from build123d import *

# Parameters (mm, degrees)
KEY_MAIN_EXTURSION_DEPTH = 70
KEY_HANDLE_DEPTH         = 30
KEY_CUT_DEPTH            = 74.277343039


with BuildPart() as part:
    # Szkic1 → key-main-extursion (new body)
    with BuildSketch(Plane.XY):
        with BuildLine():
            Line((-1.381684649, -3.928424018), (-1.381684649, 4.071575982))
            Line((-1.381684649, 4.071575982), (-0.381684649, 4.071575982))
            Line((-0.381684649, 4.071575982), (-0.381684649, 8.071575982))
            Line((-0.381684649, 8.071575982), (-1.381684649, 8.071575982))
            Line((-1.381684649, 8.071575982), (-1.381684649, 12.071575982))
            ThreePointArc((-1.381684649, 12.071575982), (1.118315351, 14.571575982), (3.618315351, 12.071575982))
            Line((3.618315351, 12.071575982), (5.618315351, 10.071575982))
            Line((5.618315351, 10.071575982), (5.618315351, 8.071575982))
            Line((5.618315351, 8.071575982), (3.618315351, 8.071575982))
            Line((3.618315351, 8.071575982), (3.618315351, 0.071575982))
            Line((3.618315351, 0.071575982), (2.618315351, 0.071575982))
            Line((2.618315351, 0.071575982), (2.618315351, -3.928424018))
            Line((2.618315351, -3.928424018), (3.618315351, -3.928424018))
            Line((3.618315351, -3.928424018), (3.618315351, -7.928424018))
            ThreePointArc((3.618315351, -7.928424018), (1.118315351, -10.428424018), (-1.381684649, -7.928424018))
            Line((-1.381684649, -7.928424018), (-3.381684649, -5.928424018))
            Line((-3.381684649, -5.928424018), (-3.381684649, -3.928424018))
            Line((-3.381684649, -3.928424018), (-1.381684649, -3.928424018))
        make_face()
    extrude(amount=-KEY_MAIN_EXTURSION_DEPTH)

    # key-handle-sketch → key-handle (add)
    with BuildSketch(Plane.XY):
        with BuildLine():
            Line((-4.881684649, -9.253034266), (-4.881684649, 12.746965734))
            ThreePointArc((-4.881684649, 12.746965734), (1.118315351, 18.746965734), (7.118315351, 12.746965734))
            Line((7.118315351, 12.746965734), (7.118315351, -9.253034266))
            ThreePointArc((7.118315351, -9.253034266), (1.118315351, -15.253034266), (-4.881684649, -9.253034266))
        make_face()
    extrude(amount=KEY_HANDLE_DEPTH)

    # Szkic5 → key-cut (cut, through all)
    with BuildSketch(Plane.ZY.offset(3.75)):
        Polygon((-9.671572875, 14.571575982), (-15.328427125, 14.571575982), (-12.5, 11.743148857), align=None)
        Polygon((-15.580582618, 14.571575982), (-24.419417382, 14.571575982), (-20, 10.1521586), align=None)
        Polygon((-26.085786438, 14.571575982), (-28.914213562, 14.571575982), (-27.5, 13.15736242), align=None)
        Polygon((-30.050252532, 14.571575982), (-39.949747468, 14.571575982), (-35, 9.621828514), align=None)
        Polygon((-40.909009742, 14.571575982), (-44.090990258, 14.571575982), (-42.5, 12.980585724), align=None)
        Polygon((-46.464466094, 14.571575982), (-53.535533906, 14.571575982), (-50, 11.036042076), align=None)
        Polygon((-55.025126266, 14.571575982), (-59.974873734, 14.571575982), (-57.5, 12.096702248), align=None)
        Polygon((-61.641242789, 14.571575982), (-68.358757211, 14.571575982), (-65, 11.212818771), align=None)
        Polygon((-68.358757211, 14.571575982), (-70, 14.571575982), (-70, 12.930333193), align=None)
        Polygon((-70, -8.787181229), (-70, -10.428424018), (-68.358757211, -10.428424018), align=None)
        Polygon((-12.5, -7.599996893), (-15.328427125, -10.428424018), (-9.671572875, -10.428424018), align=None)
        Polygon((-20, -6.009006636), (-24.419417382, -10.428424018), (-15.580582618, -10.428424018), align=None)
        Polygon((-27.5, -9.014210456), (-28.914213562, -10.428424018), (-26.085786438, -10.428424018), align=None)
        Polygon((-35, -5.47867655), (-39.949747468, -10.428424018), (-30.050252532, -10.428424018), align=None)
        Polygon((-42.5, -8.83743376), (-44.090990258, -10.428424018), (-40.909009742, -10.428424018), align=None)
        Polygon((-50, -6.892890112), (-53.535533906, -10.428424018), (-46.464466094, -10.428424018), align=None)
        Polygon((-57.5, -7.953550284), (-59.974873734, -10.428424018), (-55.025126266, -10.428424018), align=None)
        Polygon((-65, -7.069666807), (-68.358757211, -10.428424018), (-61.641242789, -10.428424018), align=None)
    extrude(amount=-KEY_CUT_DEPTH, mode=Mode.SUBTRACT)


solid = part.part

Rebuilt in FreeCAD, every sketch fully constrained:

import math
import FreeCAD as App
import Part
import Sketcher
from FreeCAD import Vector
Q = App.Units.Quantity


def add_polygon(sketch, points):
    """Adds a closed chain of lines whose ends are joined by coincident constraints."""
    first, n = sketch.GeometryCount, len(points)
    for a, b in zip(points, points[1:] + points[:1]):
        sketch.addGeometry(Part.LineSegment(App.Vector(*a, 0), App.Vector(*b, 0)), False)
    for i in range(n):
        sketch.addConstraint(Sketcher.Constraint("Coincident", first + i, 2, first + (i + 1) % n, 1))

doc = App.newDocument("Part")
body = doc.addObject("PartDesign::Body", "Body")

sketch1 = body.newObject("Sketcher::SketchObject", "Sketch")
sketch1.AttachmentSupport = (doc.getObject("XY_Plane"), [""])
sketch1.MapMode = "FlatFace"
sketch1.addGeometry(Part.LineSegment(Vector(-1.4, 4.1, 0), Vector(-1.4, -3.9, 0)), False)
sketch1.addGeometry(Part.LineSegment(Vector(-1.4, -3.9, 0), Vector(-3.4, -3.9, 0)), False)
sketch1.addGeometry(Part.LineSegment(Vector(-3.4, -3.9, 0), Vector(-3.4, -5.9, 0)), False)
sketch1.addGeometry(Part.LineSegment(Vector(-3.4, -5.9, 0), Vector(-1.4, -7.9, 0)), False)
sketch1.addGeometry(Part.ArcOfCircle(Part.Circle(Vector(1.1, -7.9, 0), Vector(0, 0, 1), 2.5), math.radians(180), math.radians(360)), False)
sketch1.addGeometry(Part.LineSegment(Vector(3.6, -7.9, 0), Vector(3.6, -3.9, 0)), False)
sketch1.addGeometry(Part.LineSegment(Vector(3.6, -3.9, 0), Vector(2.6, -3.9, 0)), False)
sketch1.addGeometry(Part.LineSegment(Vector(2.6, -3.9, 0), Vector(2.6, 0.1, 0)), False)
sketch1.addGeometry(Part.LineSegment(Vector(2.6, 0.1, 0), Vector(3.6, 0.1, 0)), False)
sketch1.addGeometry(Part.LineSegment(Vector(3.6, 0.1, 0), Vector(3.6, 8.1, 0)), False)
sketch1.addGeometry(Part.LineSegment(Vector(3.6, 8.1, 0), Vector(5.6, 8.1, 0)), False)
sketch1.addGeometry(Part.LineSegment(Vector(5.6, 8.1, 0), Vector(5.6, 10.1, 0)), False)
sketch1.addGeometry(Part.LineSegment(Vector(5.6, 10.1, 0), Vector(3.6, 12.1, 0)), False)
sketch1.addGeometry(Part.ArcOfCircle(Part.Circle(Vector(1.1, 12.1, 0), Vector(0, 0, 1), 2.5), math.radians(0), math.radians(180)), False)
sketch1.addGeometry(Part.LineSegment(Vector(-1.4, 12.1, 0), Vector(-1.4, 8.1, 0)), False)
sketch1.addGeometry(Part.LineSegment(Vector(-1.4, 8.1, 0), Vector(-0.4, 8.1, 0)), False)
sketch1.addGeometry(Part.LineSegment(Vector(-0.4, 8.1, 0), Vector(-0.4, 4.1, 0)), False)
sketch1.addGeometry(Part.LineSegment(Vector(-0.4, 4.1, 0), Vector(-1.4, 4.1, 0)), False)
sketch1.addConstraint(Sketcher.Constraint("Coincident", 0, 2, 1, 1))
sketch1.addConstraint(Sketcher.Constraint("Coincident", 1, 2, 2, 1))
sketch1.addConstraint(Sketcher.Constraint("Coincident", 2, 2, 3, 1))
sketch1.addConstraint(Sketcher.Constraint("Coincident", 3, 2, 4, 1))
sketch1.addConstraint(Sketcher.Constraint("Tangent", 4, 2, 5, 1))
sketch1.addConstraint(Sketcher.Constraint("Coincident", 5, 2, 6, 1))
sketch1.addConstraint(Sketcher.Constraint("Coincident", 6, 2, 7, 1))
sketch1.addConstraint(Sketcher.Constraint("Coincident", 7, 2, 8, 1))
sketch1.addConstraint(Sketcher.Constraint("Coincident", 8, 2, 9, 1))
sketch1.addConstraint(Sketcher.Constraint("Coincident", 9, 2, 10, 1))
sketch1.addConstraint(Sketcher.Constraint("Coincident", 10, 2, 11, 1))
sketch1.addConstraint(Sketcher.Constraint("Coincident", 11, 2, 12, 1))
sketch1.addConstraint(Sketcher.Constraint("Coincident", 12, 2, 13, 1))
sketch1.addConstraint(Sketcher.Constraint("Tangent", 13, 2, 14, 1))
sketch1.addConstraint(Sketcher.Constraint("Coincident", 14, 2, 15, 1))
sketch1.addConstraint(Sketcher.Constraint("Coincident", 15, 2, 16, 1))
sketch1.addConstraint(Sketcher.Constraint("Coincident", 16, 2, 17, 1))
sketch1.addConstraint(Sketcher.Constraint("Coincident", 17, 2, 0, 1))
sketch1.addConstraint(Sketcher.Constraint("Vertical", 0))
sketch1.addConstraint(Sketcher.Constraint("Horizontal", 1))
sketch1.addConstraint(Sketcher.Constraint("Vertical", 2))
sketch1.addConstraint(Sketcher.Constraint("Vertical", 5))
sketch1.addConstraint(Sketcher.Constraint("Horizontal", 6))
sketch1.addConstraint(Sketcher.Constraint("Vertical", 7))
sketch1.addConstraint(Sketcher.Constraint("Horizontal", 8))
sketch1.addConstraint(Sketcher.Constraint("Vertical", 9))
sketch1.addConstraint(Sketcher.Constraint("Horizontal", 10))
sketch1.addConstraint(Sketcher.Constraint("Vertical", 11))
sketch1.addConstraint(Sketcher.Constraint("Vertical", 14))
sketch1.addConstraint(Sketcher.Constraint("Horizontal", 15))
sketch1.addConstraint(Sketcher.Constraint("Vertical", 16))
sketch1.addConstraint(Sketcher.Constraint("Horizontal", 17))
sketch1.addConstraint(Sketcher.Constraint("Equal", 4, 13))
sketch1.addConstraint(Sketcher.Constraint("Parallel", 3, 12))
sketch1.addConstraint(Sketcher.Constraint("Horizontal", 4, 3, 3, 2))
sketch1.addConstraint(Sketcher.Constraint("Horizontal", 1, 2, 5, 2))
sketch1.addConstraint(Sketcher.Constraint("Horizontal", 13, 3, 12, 2))
sketch1.addConstraint(Sketcher.Constraint("Horizontal", 10, 2, 14, 2))
sketch1.addConstraint(Sketcher.Constraint("Vertical", 4, 3, 13, 3))
sketch1.addConstraint(Sketcher.Constraint("Vertical", 0, 2, 3, 2))
sketch1.addConstraint(Sketcher.Constraint("Vertical", 5, 2, 8, 2))
sketch1.addConstraint(Sketcher.Constraint("Equal", 1, 10))
sketch1.addConstraint(Sketcher.Constraint("Equal", 8, 15))
sketch1.addConstraint(Sketcher.Constraint("Equal", 10, 2))
sketch1.addConstraint(Sketcher.Constraint("Equal", 5, 7))
sketch1.addConstraint(Sketcher.Constraint("Equal", 0, 9))
sketch1.addConstraint(Sketcher.Constraint("Equal", 2, 11))
sketch1.addConstraint(Sketcher.Constraint("Radius", 4, Q("2.5 mm")))
sketch1.addConstraint(Sketcher.Constraint("DistanceX", 1, 2, 1, 1, Q("2 mm")))
sketch1.addConstraint(Sketcher.Constraint("DistanceX", 6, 2, 6, 1, Q("1 mm")))
sketch1.addConstraint(Sketcher.Constraint("DistanceY", 0, 2, 0, 1, Q("8 mm")))
sketch1.addConstraint(Sketcher.Constraint("DistanceY", 5, 1, 5, 2, Q("4 mm")))
sketch1.addConstraint(Sketcher.Constraint("DistanceX", -1, 1, 4, 3, Q("1.118315 mm")))
sketch1.addConstraint(Sketcher.Constraint("DistanceY", 4, 3, -1, 1, Q("7.928424 mm")))
pad1 = body.newObject("PartDesign::Pad", "Pad")
pad1.Profile = sketch1
pad1.Length = 70
pad1.Reversed = True

sketch2 = body.newObject("Sketcher::SketchObject", "Sketch001")
sketch2.AttachmentSupport = (doc.getObject("XY_Plane"), [""])
sketch2.MapMode = "FlatFace"
sketch2.addGeometry(Part.LineSegment(Vector(-5, 13, 0), Vector(-5, -9, 0)), False)
sketch2.addGeometry(Part.ArcOfCircle(Part.Circle(Vector(1, -9, 0), Vector(0, 0, 1), 6), math.radians(180), math.radians(360)), False)
sketch2.addGeometry(Part.LineSegment(Vector(7, -9, 0), Vector(7, 13, 0)), False)
sketch2.addGeometry(Part.ArcOfCircle(Part.Circle(Vector(1, 13, 0), Vector(0, 0, 1), 6), math.radians(0), math.radians(180)), False)
sketch2.addConstraint(Sketcher.Constraint("Tangent", 0, 2, 1, 1))
sketch2.addConstraint(Sketcher.Constraint("Tangent", 1, 2, 2, 1))
sketch2.addConstraint(Sketcher.Constraint("Tangent", 2, 2, 3, 1))
sketch2.addConstraint(Sketcher.Constraint("Tangent", 3, 2, 0, 1))
sketch2.addConstraint(Sketcher.Constraint("Vertical", 0))
sketch2.addConstraint(Sketcher.Constraint("Vertical", 2))
sketch2.addConstraint(Sketcher.Constraint("Radius", 1, Q("6 mm")))
sketch2.addConstraint(Sketcher.Constraint("DistanceY", 0, 2, 0, 1, Q("22 mm")))
sketch2.addConstraint(Sketcher.Constraint("DistanceX", -1, 1, 1, 3, Q("1.118315 mm")))
sketch2.addConstraint(Sketcher.Constraint("DistanceY", 1, 3, -1, 1, Q("9.253034 mm")))
pad2 = body.newObject("PartDesign::Pad", "Pad001")
pad2.Profile = sketch2
pad2.Length = 30

sketch3 = body.newObject("Sketcher::SketchObject", "Sketch002")
sketch3.AttachmentSupport = (doc.getObject("YZ_Plane"), [""])
sketch3.MapMode = "FlatFace"
sketch3.AttachmentOffset = App.Placement(Vector(0, 0, -3.75), App.Rotation())
add_polygon(sketch3, [(14.6, -9.7), (14.6, -15.3), (11.7, -12.5)])
add_polygon(sketch3, [(14.6, -15.6), (14.6, -24.4), (10.2, -20)])
add_polygon(sketch3, [(14.6, -26.1), (14.6, -28.9), (13.2, -27.5)])
add_polygon(sketch3, [(14.6, -30.1), (14.6, -39.9), (9.6, -35)])
add_polygon(sketch3, [(14.6, -40.9), (14.6, -44.1), (13, -42.5)])
add_polygon(sketch3, [(14.6, -46.5), (14.6, -53.5), (11, -50)])
add_polygon(sketch3, [(14.6, -55), (14.6, -60), (12.1, -57.5)])
add_polygon(sketch3, [(14.6, -61.6), (14.6, -68.4), (11.2, -65)])
add_polygon(sketch3, [(14.6, -68.4), (14.6, -70), (12.9, -70)])
add_polygon(sketch3, [(-8.8, -70), (-10.4, -70), (-10.4, -68.4)])
add_polygon(sketch3, [(-7.6, -12.5), (-10.4, -15.3), (-10.4, -9.7)])
add_polygon(sketch3, [(-6, -20), (-10.4, -24.4), (-10.4, -15.6)])
add_polygon(sketch3, [(-9, -27.5), (-10.4, -28.9), (-10.4, -26.1)])
add_polygon(sketch3, [(-5.5, -35), (-10.4, -39.9), (-10.4, -30.1)])
add_polygon(sketch3, [(-8.8, -42.5), (-10.4, -44.1), (-10.4, -40.9)])
add_polygon(sketch3, [(-6.9, -50), (-10.4, -53.5), (-10.4, -46.5)])
add_polygon(sketch3, [(-8, -57.5), (-10.4, -60), (-10.4, -55)])
add_polygon(sketch3, [(-7.1, -65), (-10.4, -68.4), (-10.4, -61.6)])
sketch3.addConstraint(Sketcher.Constraint("Vertical", 0))
sketch3.addConstraint(Sketcher.Constraint("Vertical", 3))
sketch3.addConstraint(Sketcher.Constraint("Vertical", 6))
sketch3.addConstraint(Sketcher.Constraint("Vertical", 9))
sketch3.addConstraint(Sketcher.Constraint("Vertical", 12))
sketch3.addConstraint(Sketcher.Constraint("Vertical", 15))
sketch3.addConstraint(Sketcher.Constraint("Vertical", 18))
sketch3.addConstraint(Sketcher.Constraint("Vertical", 21))
sketch3.addConstraint(Sketcher.Constraint("Vertical", 24))
sketch3.addConstraint(Sketcher.Constraint("Horizontal", 25))
sketch3.addConstraint(Sketcher.Constraint("Horizontal", 27))
sketch3.addConstraint(Sketcher.Constraint("Vertical", 28))
sketch3.addConstraint(Sketcher.Constraint("Vertical", 31))
sketch3.addConstraint(Sketcher.Constraint("Vertical", 34))
sketch3.addConstraint(Sketcher.Constraint("Vertical", 37))
sketch3.addConstraint(Sketcher.Constraint("Vertical", 40))
sketch3.addConstraint(Sketcher.Constraint("Vertical", 43))
sketch3.addConstraint(Sketcher.Constraint("Vertical", 46))
sketch3.addConstraint(Sketcher.Constraint("Vertical", 49))
sketch3.addConstraint(Sketcher.Constraint("Vertical", 52))
sketch3.addConstraint(Sketcher.Constraint("Coincident", 26, 2, 21, 2))
sketch3.addConstraint(Sketcher.Constraint("Coincident", 51, 2, 28, 2))
sketch3.addConstraint(Sketcher.Constraint("Perpendicular", 1, 2))
sketch3.addConstraint(Sketcher.Constraint("Perpendicular", 2, 4))
sketch3.addConstraint(Sketcher.Constraint("Perpendicular", 4, 5))
sketch3.addConstraint(Sketcher.Constraint("Perpendicular", 5, 7))
sketch3.addConstraint(Sketcher.Constraint("Perpendicular", 7, 8))
sketch3.addConstraint(Sketcher.Constraint("Perpendicular", 8, 10))
sketch3.addConstraint(Sketcher.Constraint("Perpendicular", 10, 11))
sketch3.addConstraint(Sketcher.Constraint("Perpendicular", 11, 13))
sketch3.addConstraint(Sketcher.Constraint("Perpendicular", 13, 14))
sketch3.addConstraint(Sketcher.Constraint("Perpendicular", 14, 16))
sketch3.addConstraint(Sketcher.Constraint("Perpendicular", 16, 17))
sketch3.addConstraint(Sketcher.Constraint("Perpendicular", 17, 19))
sketch3.addConstraint(Sketcher.Constraint("Perpendicular", 19, 20))
sketch3.addConstraint(Sketcher.Constraint("Perpendicular", 20, 22))
sketch3.addConstraint(Sketcher.Constraint("Perpendicular", 22, 23))
sketch3.addConstraint(Sketcher.Constraint("Parallel", 23, 26))
sketch3.addConstraint(Sketcher.Constraint("Perpendicular", 26, 29))
sketch3.addConstraint(Sketcher.Constraint("Perpendicular", 29, 30))
sketch3.addConstraint(Sketcher.Constraint("Perpendicular", 30, 32))
sketch3.addConstraint(Sketcher.Constraint("Perpendicular", 32, 33))
sketch3.addConstraint(Sketcher.Constraint("Perpendicular", 33, 35))
sketch3.addConstraint(Sketcher.Constraint("Perpendicular", 35, 36))
sketch3.addConstraint(Sketcher.Constraint("Perpendicular", 36, 38))
sketch3.addConstraint(Sketcher.Constraint("Perpendicular", 38, 39))
sketch3.addConstraint(Sketcher.Constraint("Perpendicular", 39, 41))
sketch3.addConstraint(Sketcher.Constraint("Perpendicular", 41, 42))
sketch3.addConstraint(Sketcher.Constraint("Perpendicular", 42, 44))
sketch3.addConstraint(Sketcher.Constraint("Perpendicular", 44, 45))
sketch3.addConstraint(Sketcher.Constraint("Perpendicular", 45, 47))
sketch3.addConstraint(Sketcher.Constraint("Perpendicular", 47, 48))
sketch3.addConstraint(Sketcher.Constraint("Perpendicular", 48, 50))
sketch3.addConstraint(Sketcher.Constraint("Perpendicular", 50, 51))
sketch3.addConstraint(Sketcher.Constraint("Perpendicular", 51, 53))
sketch3.addConstraint(Sketcher.Constraint("Horizontal", 25, 2, 27, 2))
sketch3.addConstraint(Sketcher.Constraint("Horizontal", 26, 2, 28, 2))
sketch3.addConstraint(Sketcher.Constraint("Horizontal", 0, 2, 30, 2))
sketch3.addConstraint(Sketcher.Constraint("Horizontal", 2, 2, 31, 2))
sketch3.addConstraint(Sketcher.Constraint("Horizontal", 1, 2, 32, 2))
sketch3.addConstraint(Sketcher.Constraint("Horizontal", 3, 2, 33, 2))
sketch3.addConstraint(Sketcher.Constraint("Horizontal", 5, 2, 34, 2))
sketch3.addConstraint(Sketcher.Constraint("Horizontal", 6, 2, 36, 2))
sketch3.addConstraint(Sketcher.Constraint("Horizontal", 8, 2, 37, 2))
sketch3.addConstraint(Sketcher.Constraint("Horizontal", 9, 2, 39, 2))
sketch3.addConstraint(Sketcher.Constraint("Horizontal", 11, 2, 40, 2))
sketch3.addConstraint(Sketcher.Constraint("Horizontal", 12, 2, 42, 2))
sketch3.addConstraint(Sketcher.Constraint("Horizontal", 14, 2, 43, 2))
sketch3.addConstraint(Sketcher.Constraint("Horizontal", 15, 2, 45, 2))
sketch3.addConstraint(Sketcher.Constraint("Horizontal", 17, 2, 46, 2))
sketch3.addConstraint(Sketcher.Constraint("Horizontal", 18, 2, 48, 2))
sketch3.addConstraint(Sketcher.Constraint("Horizontal", 20, 2, 49, 2))
sketch3.addConstraint(Sketcher.Constraint("Horizontal", 23, 2, 52, 2))
sketch3.addConstraint(Sketcher.Constraint("Vertical", 2, 2, 3, 2))
sketch3.addConstraint(Sketcher.Constraint("Vertical", 5, 2, 6, 2))
sketch3.addConstraint(Sketcher.Constraint("Vertical", 8, 2, 9, 2))
sketch3.addConstraint(Sketcher.Constraint("Vertical", 11, 2, 12, 2))
sketch3.addConstraint(Sketcher.Constraint("Vertical", 14, 2, 15, 2))
sketch3.addConstraint(Sketcher.Constraint("Vertical", 17, 2, 18, 2))
sketch3.addConstraint(Sketcher.Constraint("Vertical", 20, 2, 21, 2))
sketch3.addConstraint(Sketcher.Constraint("Vertical", 28, 2, 30, 2))
sketch3.addConstraint(Sketcher.Constraint("Vertical", 31, 2, 33, 2))
sketch3.addConstraint(Sketcher.Constraint("Vertical", 34, 2, 36, 2))
sketch3.addConstraint(Sketcher.Constraint("Vertical", 37, 2, 39, 2))
sketch3.addConstraint(Sketcher.Constraint("Vertical", 40, 2, 42, 2))
sketch3.addConstraint(Sketcher.Constraint("Vertical", 43, 2, 45, 2))
sketch3.addConstraint(Sketcher.Constraint("Vertical", 46, 2, 48, 2))
sketch3.addConstraint(Sketcher.Constraint("Distance", 1, Q("4 mm")))
sketch3.addConstraint(Sketcher.Constraint("Distance", 7, Q("2 mm")))
sketch3.addConstraint(Sketcher.Constraint("Distance", 10, Q("7 mm")))
sketch3.addConstraint(Sketcher.Constraint("Distance", 16, Q("5 mm")))
sketch3.addConstraint(Sketcher.Constraint("DistanceY", 4, 2, -1, 1, Q("20 mm")))
sketch3.addConstraint(Sketcher.Constraint("DistanceY", 10, 2, -1, 1, Q("35 mm")))
sketch3.addConstraint(Sketcher.Constraint("DistanceY", 16, 2, -1, 1, Q("50 mm")))
sketch3.addConstraint(Sketcher.Constraint("DistanceY", 22, 2, -1, 1, Q("65 mm")))
sketch3.addConstraint(Sketcher.Constraint("DistanceY", 24, 2, -1, 1, Q("70 mm")))
sketch3.addConstraint(Sketcher.Constraint("DistanceX", 27, 2, 24, 2, Q("25 mm")))
sketch3.addConstraint(Sketcher.Constraint("Distance", 19, Q("3.5 mm")))
sketch3.addConstraint(Sketcher.Constraint("DistanceY", 1, 2, -1, 1, Q("12.5 mm")))
sketch3.addConstraint(Sketcher.Constraint("DistanceY", 7, 2, -1, 1, Q("27.5 mm")))
sketch3.addConstraint(Sketcher.Constraint("DistanceY", 13, 2, -1, 1, Q("42.5 mm")))
sketch3.addConstraint(Sketcher.Constraint("DistanceY", 19, 2, -1, 1, Q("57.5 mm")))
sketch3.addConstraint(Sketcher.Constraint("Distance", 4, Q("6.25 mm")))
sketch3.addConstraint(Sketcher.Constraint("Distance", 13, Q("2.25 mm")))
sketch3.addConstraint(Sketcher.Constraint("Distance", 22, Q("4.75 mm")))
sketch3.addConstraint(Sketcher.Constraint("DistanceX", -1, 1, 1, 2, Q("11.743149 mm")))
pocket1 = body.newObject("PartDesign::Pocket", "Pocket")
pocket1.Profile = sketch3
pocket1.Type = "ThroughAll"
pocket1.Reversed = True

doc.recompute()
